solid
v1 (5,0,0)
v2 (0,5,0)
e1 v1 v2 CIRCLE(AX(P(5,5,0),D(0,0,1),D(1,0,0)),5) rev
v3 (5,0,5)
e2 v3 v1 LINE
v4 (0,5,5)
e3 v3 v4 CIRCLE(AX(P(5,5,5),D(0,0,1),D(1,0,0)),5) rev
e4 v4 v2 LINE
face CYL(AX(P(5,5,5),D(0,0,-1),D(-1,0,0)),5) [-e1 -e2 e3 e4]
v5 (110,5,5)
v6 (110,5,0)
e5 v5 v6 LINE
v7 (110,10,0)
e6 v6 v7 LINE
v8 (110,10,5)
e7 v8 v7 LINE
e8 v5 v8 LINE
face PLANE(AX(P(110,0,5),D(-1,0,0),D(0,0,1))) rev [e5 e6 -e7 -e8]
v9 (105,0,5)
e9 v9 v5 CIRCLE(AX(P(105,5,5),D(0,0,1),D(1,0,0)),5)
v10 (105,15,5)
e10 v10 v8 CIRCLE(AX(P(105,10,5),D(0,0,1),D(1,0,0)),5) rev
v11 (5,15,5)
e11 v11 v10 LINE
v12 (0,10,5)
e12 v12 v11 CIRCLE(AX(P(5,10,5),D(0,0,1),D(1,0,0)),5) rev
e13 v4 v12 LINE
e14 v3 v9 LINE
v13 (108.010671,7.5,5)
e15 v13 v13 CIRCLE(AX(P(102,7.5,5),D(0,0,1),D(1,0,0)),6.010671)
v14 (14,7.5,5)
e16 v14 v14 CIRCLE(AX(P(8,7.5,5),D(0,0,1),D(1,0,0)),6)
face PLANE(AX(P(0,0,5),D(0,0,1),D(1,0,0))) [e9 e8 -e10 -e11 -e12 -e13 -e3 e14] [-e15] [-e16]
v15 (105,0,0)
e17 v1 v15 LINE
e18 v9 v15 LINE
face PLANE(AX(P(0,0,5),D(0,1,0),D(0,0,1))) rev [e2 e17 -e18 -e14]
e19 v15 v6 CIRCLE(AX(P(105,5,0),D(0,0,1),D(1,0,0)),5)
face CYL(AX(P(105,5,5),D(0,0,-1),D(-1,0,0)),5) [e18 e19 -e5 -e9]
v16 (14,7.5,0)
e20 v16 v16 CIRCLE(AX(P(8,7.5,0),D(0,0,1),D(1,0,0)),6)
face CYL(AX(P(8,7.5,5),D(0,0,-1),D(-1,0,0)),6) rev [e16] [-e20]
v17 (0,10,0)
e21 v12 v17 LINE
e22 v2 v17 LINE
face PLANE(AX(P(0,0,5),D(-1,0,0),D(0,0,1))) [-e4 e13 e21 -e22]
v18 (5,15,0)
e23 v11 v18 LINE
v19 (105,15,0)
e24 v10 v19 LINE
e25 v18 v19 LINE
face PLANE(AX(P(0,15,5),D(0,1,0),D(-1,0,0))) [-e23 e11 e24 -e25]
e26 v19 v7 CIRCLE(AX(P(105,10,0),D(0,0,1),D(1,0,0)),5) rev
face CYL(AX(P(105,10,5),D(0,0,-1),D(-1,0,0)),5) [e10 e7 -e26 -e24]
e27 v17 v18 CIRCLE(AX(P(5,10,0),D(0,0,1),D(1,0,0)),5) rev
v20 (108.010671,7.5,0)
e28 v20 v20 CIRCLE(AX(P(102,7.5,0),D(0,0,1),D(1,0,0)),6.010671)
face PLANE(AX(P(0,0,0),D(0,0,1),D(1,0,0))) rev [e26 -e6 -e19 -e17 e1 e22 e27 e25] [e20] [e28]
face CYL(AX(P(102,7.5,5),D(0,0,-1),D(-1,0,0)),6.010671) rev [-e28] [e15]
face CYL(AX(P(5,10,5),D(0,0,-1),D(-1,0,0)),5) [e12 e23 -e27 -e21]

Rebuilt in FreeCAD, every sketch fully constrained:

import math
import FreeCAD as App
import Part
import Sketcher
Q = App.Units.Quantity

doc = App.newDocument("Part")
body = doc.addObject("PartDesign::Body", "Body")

sketch1 = doc.addObject("Sketcher::SketchObject", "Sketch")
body.addObject(sketch1)
sketch1.AttachmentSupport = (doc.XY_Plane, [""])
sketch1.MapMode = "FlatFace"
sketch1.addGeometry([
    Part.ArcOfCircle(Part.Circle(App.Vector(5, 10, 0), App.Vector(0, 0, 1), 5), math.radians(90), math.radians(180)),
    Part.LineSegment(App.Vector(0, 10, 0), App.Vector(0, 5, 0)),
    Part.ArcOfCircle(Part.Circle(App.Vector(5, 5, 0), App.Vector(0, 0, 1), 5), math.radians(180), math.radians(270)),
    Part.LineSegment(App.Vector(5, 0, 0), App.Vector(105, 0, 0)),
    Part.ArcOfCircle(Part.Circle(App.Vector(105, 5, 0), App.Vector(0, 0, 1), 5), math.radians(-90), math.radians(0)),
    Part.LineSegment(App.Vector(110, 5, 0), App.Vector(110, 10, 0)),
    Part.ArcOfCircle(Part.Circle(App.Vector(105, 10, 0), App.Vector(0, 0, 1), 5), math.radians(0), math.radians(90)),
    Part.LineSegment(App.Vector(105, 15, 0), App.Vector(5, 15, 0)),
    Part.ArcOfCircle(Part.Circle(App.Vector(8, 7.5, 0), App.Vector(0, 0, 1), 6), math.radians(-120), math.radians(0)),
    Part.ArcOfCircle(Part.Circle(App.Vector(8, 7.5, 0), App.Vector(0, 0, 1), 6), math.radians(180), math.radians(240)),
    Part.ArcOfCircle(Part.Circle(App.Vector(8, 7.5, 0), App.Vector(0, 0, 1), 6), math.radians(120), math.radians(180)),
    Part.ArcOfCircle(Part.Circle(App.Vector(8, 7.5, 0), App.Vector(0, 0, 1), 6), math.radians(0), math.radians(120)),
    Part.ArcOfCircle(Part.Circle(App.Vector(102, 7.5, 0), App.Vector(0, 0, 1), 6.010671), math.radians(180), math.radians(299.941289)),
    Part.ArcOfCircle(Part.Circle(App.Vector(102, 7.5, 0), App.Vector(0, 0, 1), 6.010671), math.radians(60.058711), math.radians(180)),
    Part.ArcOfCircle(Part.Circle(App.Vector(102, 7.5, 0), App.Vector(0, 0, 1), 6.010671), math.radians(0), math.radians(60.058711)),
    Part.ArcOfCircle(Part.Circle(App.Vector(102, 7.5, 0), App.Vector(0, 0, 1), 6.010671), math.radians(-60.058711), math.radians(0)),
], False)
sketch1.addConstraint([
    Sketcher.Constraint("Tangent", 0, 2, 1, 1),
    Sketcher.Constraint("Tangent", 1, 2, 2, 1),
    Sketcher.Constraint("Tangent", 2, 2, 3, 1),
    Sketcher.Constraint("Tangent", 3, 2, 4, 1),
    Sketcher.Constraint("Tangent", 4, 2, 5, 1),
    Sketcher.Constraint("Tangent", 5, 2, 6, 1),
    Sketcher.Constraint("Tangent", 6, 2, 7, 1),
    Sketcher.Constraint("Tangent", 7, 2, 0, 1),
    Sketcher.Constraint("Tangent", 8, 1, 9, 2),
    Sketcher.Constraint("Tangent", 9, 1, 10, 2),
    Sketcher.Constraint("Tangent", 10, 1, 11, 2),
    Sketcher.Constraint("Tangent", 11, 1, 8, 2),
    Sketcher.Constraint("Tangent", 12, 1, 13, 2),
    Sketcher.Constraint("Tangent", 13, 1, 14, 2),
    Sketcher.Constraint("Tangent", 14, 1, 15, 2),
    Sketcher.Constraint("Tangent", 15, 1, 12, 2),
    Sketcher.Constraint("Vertical", 1),
    Sketcher.Constraint("Horizontal", 3),
    Sketcher.Constraint("Vertical", 5),
    Sketcher.Constraint("Horizontal", 7),
    Sketcher.Constraint("Equal", 0, 2),
    Sketcher.Constraint("Equal", 2, 4),
    Sketcher.Constraint("Equal", 4, 6),
    Sketcher.Constraint("Equal", 8, 9),
    Sketcher.Constraint("Equal", 12, 13),
    Sketcher.Constraint("PointOnObject", 0, 2, -2),
    Sketcher.Constraint("PointOnObject", 2, 2, -1),
    Sketcher.Constraint("Horizontal", 11, 3, 12, 3),
    Sketcher.Constraint("Horizontal", 15, 3, 9, 1),
    Sketcher.Constraint("Horizontal", 9, 1, 11, 1),
    Sketcher.Constraint("Horizontal", 11, 1, 12, 1),
    Sketcher.Constraint("Horizontal", 12, 1, 14, 1),
    Sketcher.Constraint("Vertical", 7, 2, 8, 1),
    Sketcher.Constraint("Vertical", 8, 1, 10, 1),
    Sketcher.Constraint("Vertical", 6, 2, 13, 1),
    Sketcher.Constraint("Vertical", 13, 1, 15, 1),
    Sketcher.Constraint("Radius", 0, Q("5 mm")),
    Sketcher.Constraint("Radius", 8, Q("6 mm")),
    Sketcher.Constraint("DistanceX", 3, 1, 3, 2, Q("100 mm")),
    Sketcher.Constraint("DistanceY", 1, 2, 1, 1, Q("5 mm")),
    Sketcher.Constraint("DistanceX", -1, 1, 8, 3, Q("8 mm")),
    Sketcher.Constraint("DistanceX", -1, 1, 12, 3, Q("102 mm")),
    Sketcher.Constraint("DistanceY", -1, 1, 8, 3, Q("7.5 mm")),
    Sketcher.Constraint("Radius", 12, Q("6.010671 mm")),
])
pad1 = doc.addObject("PartDesign::Pad", "Pad")
body.addObject(pad1)
pad1.Profile = sketch1
pad1.Length = 5

doc.recompute()
